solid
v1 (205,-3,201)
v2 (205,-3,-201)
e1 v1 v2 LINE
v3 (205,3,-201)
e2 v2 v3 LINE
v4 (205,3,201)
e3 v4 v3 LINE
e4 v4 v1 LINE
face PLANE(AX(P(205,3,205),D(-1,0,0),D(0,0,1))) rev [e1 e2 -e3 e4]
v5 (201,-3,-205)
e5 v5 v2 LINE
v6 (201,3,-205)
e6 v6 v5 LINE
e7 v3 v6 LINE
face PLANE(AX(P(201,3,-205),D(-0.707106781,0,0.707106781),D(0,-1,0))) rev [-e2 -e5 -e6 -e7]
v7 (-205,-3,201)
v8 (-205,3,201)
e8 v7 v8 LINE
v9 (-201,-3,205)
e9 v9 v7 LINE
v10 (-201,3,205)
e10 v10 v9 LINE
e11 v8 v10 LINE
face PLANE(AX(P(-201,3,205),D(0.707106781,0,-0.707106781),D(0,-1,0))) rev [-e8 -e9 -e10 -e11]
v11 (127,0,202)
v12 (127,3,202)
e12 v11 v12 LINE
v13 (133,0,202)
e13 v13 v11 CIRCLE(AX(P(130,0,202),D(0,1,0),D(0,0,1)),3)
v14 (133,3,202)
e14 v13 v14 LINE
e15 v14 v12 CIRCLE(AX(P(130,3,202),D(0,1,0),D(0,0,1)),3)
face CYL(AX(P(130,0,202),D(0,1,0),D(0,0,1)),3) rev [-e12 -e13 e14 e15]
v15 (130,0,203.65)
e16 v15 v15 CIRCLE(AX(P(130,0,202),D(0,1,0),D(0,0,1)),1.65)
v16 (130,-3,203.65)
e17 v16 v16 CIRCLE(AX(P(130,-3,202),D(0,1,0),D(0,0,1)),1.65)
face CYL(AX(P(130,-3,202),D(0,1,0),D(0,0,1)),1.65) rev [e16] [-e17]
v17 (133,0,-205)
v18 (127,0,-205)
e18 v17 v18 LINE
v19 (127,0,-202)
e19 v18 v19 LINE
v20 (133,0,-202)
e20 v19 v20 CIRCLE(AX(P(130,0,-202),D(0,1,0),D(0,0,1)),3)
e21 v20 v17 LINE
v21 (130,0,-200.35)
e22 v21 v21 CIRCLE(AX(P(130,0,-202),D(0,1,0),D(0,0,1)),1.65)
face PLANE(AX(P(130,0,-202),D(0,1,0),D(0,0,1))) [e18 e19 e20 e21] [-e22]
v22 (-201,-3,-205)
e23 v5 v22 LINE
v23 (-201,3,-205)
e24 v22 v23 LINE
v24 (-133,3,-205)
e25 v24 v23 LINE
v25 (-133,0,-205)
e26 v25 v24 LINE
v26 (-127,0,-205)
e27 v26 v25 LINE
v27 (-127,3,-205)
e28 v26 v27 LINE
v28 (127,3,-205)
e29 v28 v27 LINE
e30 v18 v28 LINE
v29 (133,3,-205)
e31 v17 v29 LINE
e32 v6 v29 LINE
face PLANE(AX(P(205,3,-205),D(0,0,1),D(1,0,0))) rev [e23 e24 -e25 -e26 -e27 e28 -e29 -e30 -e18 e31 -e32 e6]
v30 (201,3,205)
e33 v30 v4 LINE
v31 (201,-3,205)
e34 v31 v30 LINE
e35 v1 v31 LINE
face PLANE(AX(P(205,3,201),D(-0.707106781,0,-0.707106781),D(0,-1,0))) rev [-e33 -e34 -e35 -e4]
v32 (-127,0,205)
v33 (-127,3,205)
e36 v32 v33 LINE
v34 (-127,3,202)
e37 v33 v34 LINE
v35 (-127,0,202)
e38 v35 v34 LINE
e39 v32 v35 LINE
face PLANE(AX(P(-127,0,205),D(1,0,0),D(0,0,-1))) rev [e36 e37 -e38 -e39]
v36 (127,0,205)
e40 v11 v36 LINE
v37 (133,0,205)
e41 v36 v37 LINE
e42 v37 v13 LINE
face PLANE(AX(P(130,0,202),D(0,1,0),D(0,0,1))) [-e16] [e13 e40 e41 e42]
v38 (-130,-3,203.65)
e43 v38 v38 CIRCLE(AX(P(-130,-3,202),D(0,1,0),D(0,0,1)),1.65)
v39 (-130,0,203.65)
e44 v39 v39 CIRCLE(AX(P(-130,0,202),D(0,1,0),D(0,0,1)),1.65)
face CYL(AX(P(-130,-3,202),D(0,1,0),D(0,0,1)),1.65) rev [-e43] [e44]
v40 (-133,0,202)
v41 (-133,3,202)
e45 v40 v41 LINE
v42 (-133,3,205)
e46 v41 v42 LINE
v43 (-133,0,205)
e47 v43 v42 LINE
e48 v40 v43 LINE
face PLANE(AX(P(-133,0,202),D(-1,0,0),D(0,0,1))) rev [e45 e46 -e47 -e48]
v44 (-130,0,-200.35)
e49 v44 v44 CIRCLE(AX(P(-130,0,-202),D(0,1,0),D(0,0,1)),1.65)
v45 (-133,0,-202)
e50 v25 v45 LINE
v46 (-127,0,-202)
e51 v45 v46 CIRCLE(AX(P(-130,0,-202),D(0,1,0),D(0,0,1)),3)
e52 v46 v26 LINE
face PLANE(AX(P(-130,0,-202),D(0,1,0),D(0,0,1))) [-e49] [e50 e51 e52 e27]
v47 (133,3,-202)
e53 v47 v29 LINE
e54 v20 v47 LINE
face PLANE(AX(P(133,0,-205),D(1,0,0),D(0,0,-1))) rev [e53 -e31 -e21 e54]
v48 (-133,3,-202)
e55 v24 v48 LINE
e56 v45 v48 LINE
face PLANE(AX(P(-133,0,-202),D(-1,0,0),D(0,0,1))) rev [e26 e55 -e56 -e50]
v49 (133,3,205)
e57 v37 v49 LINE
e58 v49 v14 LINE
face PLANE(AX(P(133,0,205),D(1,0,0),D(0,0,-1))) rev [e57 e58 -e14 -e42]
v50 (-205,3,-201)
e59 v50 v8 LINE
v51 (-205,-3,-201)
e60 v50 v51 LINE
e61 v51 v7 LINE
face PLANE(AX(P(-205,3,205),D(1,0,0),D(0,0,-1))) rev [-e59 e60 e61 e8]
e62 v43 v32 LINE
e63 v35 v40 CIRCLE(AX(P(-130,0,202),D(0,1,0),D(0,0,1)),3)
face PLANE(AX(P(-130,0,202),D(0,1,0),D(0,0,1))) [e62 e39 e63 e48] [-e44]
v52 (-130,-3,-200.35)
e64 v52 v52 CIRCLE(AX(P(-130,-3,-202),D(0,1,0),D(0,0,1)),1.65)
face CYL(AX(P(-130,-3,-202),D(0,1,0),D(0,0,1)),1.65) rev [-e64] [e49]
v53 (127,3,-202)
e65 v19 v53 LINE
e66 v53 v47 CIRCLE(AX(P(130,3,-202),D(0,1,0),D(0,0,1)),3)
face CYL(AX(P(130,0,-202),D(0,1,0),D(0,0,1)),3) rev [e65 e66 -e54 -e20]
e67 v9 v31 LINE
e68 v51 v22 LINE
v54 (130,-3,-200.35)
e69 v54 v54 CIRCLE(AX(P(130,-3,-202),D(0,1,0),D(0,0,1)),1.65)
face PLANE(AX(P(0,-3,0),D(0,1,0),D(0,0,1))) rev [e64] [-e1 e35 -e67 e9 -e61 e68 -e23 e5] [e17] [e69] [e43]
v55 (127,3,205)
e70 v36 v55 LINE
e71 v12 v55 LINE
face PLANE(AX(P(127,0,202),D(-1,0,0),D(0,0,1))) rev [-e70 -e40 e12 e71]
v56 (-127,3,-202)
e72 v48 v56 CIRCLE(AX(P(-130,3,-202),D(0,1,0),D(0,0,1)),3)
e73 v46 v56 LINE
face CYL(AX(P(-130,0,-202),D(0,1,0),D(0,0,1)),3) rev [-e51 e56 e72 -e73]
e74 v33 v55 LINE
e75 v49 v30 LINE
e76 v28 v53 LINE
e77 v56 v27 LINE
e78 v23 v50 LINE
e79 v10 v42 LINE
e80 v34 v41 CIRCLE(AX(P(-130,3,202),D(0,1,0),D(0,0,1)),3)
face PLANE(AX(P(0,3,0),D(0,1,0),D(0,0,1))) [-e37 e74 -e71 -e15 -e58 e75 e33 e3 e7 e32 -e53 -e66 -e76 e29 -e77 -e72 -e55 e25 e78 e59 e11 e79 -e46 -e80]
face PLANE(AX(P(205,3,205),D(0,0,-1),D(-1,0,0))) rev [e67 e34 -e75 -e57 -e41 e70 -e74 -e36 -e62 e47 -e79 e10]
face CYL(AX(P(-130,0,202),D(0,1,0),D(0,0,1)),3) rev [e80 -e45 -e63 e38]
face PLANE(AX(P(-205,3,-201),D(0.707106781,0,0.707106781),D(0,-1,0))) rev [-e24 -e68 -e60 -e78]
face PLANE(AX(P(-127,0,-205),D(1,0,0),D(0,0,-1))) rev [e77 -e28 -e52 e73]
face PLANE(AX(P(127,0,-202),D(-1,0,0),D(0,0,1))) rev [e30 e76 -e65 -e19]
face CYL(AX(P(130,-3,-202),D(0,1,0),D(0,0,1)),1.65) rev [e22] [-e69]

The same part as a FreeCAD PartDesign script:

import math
import FreeCAD as App
import Part
import Sketcher


def edges_at(feature, points):
    """Names of the edges that pass closest to the given points."""
    edges = feature.Shape.Edges
    near = lambda p: min(range(len(edges)), key=lambda i: edges[i].distToShape(Part.Vertex(*p))[0])
    return sorted({f"Edge{near(p) + 1}" for p in points})

doc = App.newDocument("Part")
params = doc.addObject("Spreadsheet::Sheet", "Params")
for row, (alias, value) in enumerate([
    ("sketch1_width", "410 mm"),
    ("pad1_length", "6 mm"),
    ("chamfer_size", "4 mm"),
    ("sketch2_radius", "3 mm"),
    ("sketch2_height", "3 mm"),
    ("pocket1_length", "3 mm"),
    ("sketch3_diameter", "3.3 mm"),
], start=1):
    params.set(f"A{row}", alias)
    params.set(f"B{row}", "=" + value)
    params.setAlias(f"B{row}", alias)

body = doc.addObject("PartDesign::Body", "Body")

# Sketch on XZ plane
sketch1 = body.newObject("Sketcher::SketchObject", "Sketch")
sketch1.AttachmentSupport = (doc.getObject("XZ_Plane"), [""])
sketch1.MapMode = "FlatFace"
sketch1.addGeometry(Part.LineSegment(App.Vector(-205, -205, 0), App.Vector(-205, 205, 0)), False)
sketch1.addGeometry(Part.LineSegment(App.Vector(-205, 205, 0), App.Vector(205, 205, 0)), False)
sketch1.addGeometry(Part.LineSegment(App.Vector(205, 205, 0), App.Vector(205, -205, 0)), False)
sketch1.addGeometry(Part.LineSegment(App.Vector(205, -205, 0), App.Vector(-205, -205, 0)), False)
sketch1.addConstraint(Sketcher.Constraint("Coincident", 0, 2, 1, 1))
sketch1.addConstraint(Sketcher.Constraint("Coincident", 1, 2, 2, 1))
sketch1.addConstraint(Sketcher.Constraint("Coincident", 2, 2, 3, 1))
sketch1.addConstraint(Sketcher.Constraint("Coincident", 3, 2, 0, 1))
sketch1.addConstraint(Sketcher.Constraint("Vertical", 0))
sketch1.addConstraint(Sketcher.Constraint("Horizontal", 1))
sketch1.addConstraint(Sketcher.Constraint("Vertical", 2))
sketch1.addConstraint(Sketcher.Constraint("Horizontal", 3))
sketch1.addConstraint(Sketcher.Constraint("Symmetric", 0, 2, 2, 2, -1, 1))
sketch1.addConstraint(Sketcher.Constraint("Equal", 3, 0))
sketch1.addConstraint(Sketcher.Constraint("DistanceX", 1, 1, 1, 2, 410.0))
sketch1.setExpression("Constraints[10]", "Params.sketch1_width")
pad1 = body.newObject("PartDesign::Pad", "Pad")
pad1.Profile = sketch1
pad1.setExpression("Length", "Params.pad1_length")
pad1.Midplane = True
doc.recompute()

chamfer = body.newObject("PartDesign::Chamfer", "Chamfer")
chamfer.Base = (pad1, edges_at(pad1, [
    (-205, 0, -205),
    (205, 0, -205),
    (205, 0, 205),
    (-205, 0, 205),
]))
chamfer.setExpression("Size", "Params.chamfer_size")

# Sketch on XZ plane
sketch2 = body.newObject("Sketcher::SketchObject", "Sketch001")
sketch2.AttachmentSupport = (doc.getObject("XZ_Plane"), [""])
sketch2.MapMode = "FlatFace"
sketch2.AttachmentOffset = App.Placement(App.Vector(0, 0, -3), App.Rotation())
sketch2.addGeometry(Part.LineSegment(App.Vector(-133, -205, 0), App.Vector(-133, -202, 0)), False)
sketch2.addGeometry(Part.ArcOfCircle(Part.Circle(App.Vector(-130, -202, 0), App.Vector(0, 0, 1), 3), math.radians(0), math.radians(180)), False)
sketch2.addGeometry(Part.LineSegment(App.Vector(-127, -202, 0), App.Vector(-127, -205, 0)), False)
sketch2.addGeometry(Part.LineSegment(App.Vector(-127, -205, 0), App.Vector(-133, -205, 0)), False)
sketch2.addGeometry(Part.LineSegment(App.Vector(127, -205, 0), App.Vector(127, -202, 0)), False)
sketch2.addGeometry(Part.ArcOfCircle(Part.Circle(App.Vector(130, -202, 0), App.Vector(0, 0, 1), 3), math.radians(0), math.radians(180)), False)
sketch2.addGeometry(Part.LineSegment(App.Vector(133, -202, 0), App.Vector(133, -205, 0)), False)
sketch2.addGeometry(Part.LineSegment(App.Vector(133, -205, 0), App.Vector(127, -205, 0)), False)
sketch2.addGeometry(Part.LineSegment(App.Vector(-133, 202, 0), App.Vector(-133, 205, 0)), False)
sketch2.addGeometry(Part.LineSegment(App.Vector(-133, 205, 0), App.Vector(-127, 205, 0)), False)
sketch2.addGeometry(Part.LineSegment(App.Vector(-127, 205, 0), App.Vector(-127, 202, 0)), False)
sketch2.addGeometry(Part.ArcOfCircle(Part.Circle(App.Vector(-130, 202, 0), App.Vector(0, 0, 1), 3), math.radians(180), math.radians(360)), False)
sketch2.addGeometry(Part.LineSegment(App.Vector(127, 202, 0), App.Vector(127, 205, 0)), False)
sketch2.addGeometry(Part.LineSegment(App.Vector(127, 205, 0), App.Vector(133, 205, 0)), False)
sketch2.addGeometry(Part.LineSegment(App.Vector(133, 205, 0), App.Vector(133, 202, 0)), False)
sketch2.addGeometry(Part.ArcOfCircle(Part.Circle(App.Vector(130, 202, 0), App.Vector(0, 0, 1), 3), math.radians(180), math.radians(360)), False)
sketch2.addConstraint(Sketcher.Constraint("Tangent", 0, 2, 1, 2))
sketch2.addConstraint(Sketcher.Constraint("Tangent", 1, 1, 2, 1))
sketch2.addConstraint(Sketcher.Constraint("Coincident", 2, 2, 3, 1))
sketch2.addConstraint(Sketcher.Constraint("Coincident", 3, 2, 0, 1))
sketch2.addConstraint(Sketcher.Constraint("Tangent", 4, 2, 5, 2))
sketch2.addConstraint(Sketcher.Constraint("Tangent", 5, 1, 6, 1))
sketch2.addConstraint(Sketcher.Constraint("Coincident", 6, 2, 7, 1))
sketch2.addConstraint(Sketcher.Constraint("Coincident", 7, 2, 4, 1))
sketch2.addConstraint(Sketcher.Constraint("Coincident", 8, 2, 9, 1))
sketch2.addConstraint(Sketcher.Constraint("Coincident", 9, 2, 10, 1))
sketch2.addConstraint(Sketcher.Constraint("Tangent", 10, 2, 11, 2))
sketch2.addConstraint(Sketcher.Constraint("Tangent", 11, 1, 8, 1))
sketch2.addConstraint(Sketcher.Constraint("Coincident", 12, 2, 13, 1))
sketch2.addConstraint(Sketcher.Constraint("Coincident", 13, 2, 14, 1))
sketch2.addConstraint(Sketcher.Constraint("Tangent", 14, 2, 15, 2))
sketch2.addConstraint(Sketcher.Constraint("Tangent", 15, 1, 12, 1))
sketch2.addConstraint(Sketcher.Constraint("Vertical", 0))
sketch2.addConstraint(Sketcher.Constraint("Vertical", 2))
sketch2.addConstraint(Sketcher.Constraint("Horizontal", 3))
sketch2.addConstraint(Sketcher.Constraint("Vertical", 4))
sketch2.addConstraint(Sketcher.Constraint("Vertical", 6))
sketch2.addConstraint(Sketcher.Constraint("Horizontal", 7))
sketch2.addConstraint(Sketcher.Constraint("Vertical", 8))
sketch2.addConstraint(Sketcher.Constraint("Horizontal", 9))
sketch2.addConstraint(Sketcher.Constraint("Vertical", 10))
sketch2.addConstraint(Sketcher.Constraint("Vertical", 12))
sketch2.addConstraint(Sketcher.Constraint("Horizontal", 13))
sketch2.addConstraint(Sketcher.Constraint("Vertical", 14))
sketch2.addConstraint(Sketcher.Constraint("Equal", 1, 5))
sketch2.addConstraint(Sketcher.Constraint("Equal", 5, 11))
sketch2.addConstraint(Sketcher.Constraint("Equal", 11, 15))
sketch2.addConstraint(Sketcher.Constraint("Symmetric", 5, 3, 11, 3, -1, 1))
sketch2.addConstraint(Sketcher.Constraint("Symmetric", 1, 3, 15, 3, -1, 1))
sketch2.addConstraint(Sketcher.Constraint("Symmetric", 1, 3, 5, 3, -2))
sketch2.addConstraint(Sketcher.Constraint("Horizontal", 3, 2, 6, 2))
sketch2.addConstraint(Sketcher.Constraint("Horizontal", 9, 2, 12, 2))
sketch2.addConstraint(Sketcher.Constraint("Equal", 6, 8))
sketch2.addConstraint(Sketcher.Constraint("Radius", 1, 3.0))
sketch2.addConstraint(Sketcher.Constraint("DistanceY", 0, 1, 0, 2, 3.0))
sketch2.addConstraint(Sketcher.Constraint("DistanceX", 1, 3, -1, 1, 130.0))
sketch2.addConstraint(Sketcher.Constraint("DistanceY", 1, 3, -1, 1, 202.0))
sketch2.setExpression("Constraints[37]", "Params.sketch2_radius")
sketch2.setExpression("Constraints[38]", "Params.sketch2_height")
pocket1 = body.newObject("PartDesign::Pocket", "Pocket")
pocket1.Profile = sketch2
pocket1.setExpression("Length", "Params.pocket1_length")
pocket1.Reversed = True

# Sketch on XZ plane
sketch3 = body.newObject("Sketcher::SketchObject", "Sketch002")
sketch3.AttachmentSupport = (doc.getObject("XZ_Plane"), [""])
sketch3.MapMode = "FlatFace"
sketch3.addGeometry(Part.Circle(App.Vector(-130, 202, 0), App.Vector(0, 0, 1), 1.6), False)
sketch3.addGeometry(Part.Circle(App.Vector(130, 202, 0), App.Vector(0, 0, 1), 1.6), False)
sketch3.addGeometry(Part.Circle(App.Vector(130, -202, 0), App.Vector(0, 0, 1), 1.6), False)
sketch3.addGeometry(Part.Circle(App.Vector(-130, -202, 0), App.Vector(0, 0, 1), 1.6), False)
sketch3.addConstraint(Sketcher.Constraint("Equal", 0, 1))
sketch3.addConstraint(Sketcher.Constraint("Equal", 1, 2))
sketch3.addConstraint(Sketcher.Constraint("Equal", 2, 3))
sketch3.addConstraint(Sketcher.Constraint("Symmetric", 0, 3, 2, 3, -1, 1))
sketch3.addConstraint(Sketcher.Constraint("Symmetric", 1, 3, 3, 3, -1, 1))
sketch3.addConstraint(Sketcher.Constraint("Symmetric", 0, 3, 1, 3, -2))
sketch3.addConstraint(Sketcher.Constraint("Diameter", 0, 3.3))
sketch3.addConstraint(Sketcher.Constraint("DistanceX", 0, 3, -1, 1, 130.0))
sketch3.addConstraint(Sketcher.Constraint("DistanceY", -1, 1, 0, 3, 202.0))
sketch3.setExpression("Constraints[6]", "Params.sketch3_diameter")
pocket2 = body.newObject("PartDesign::Pocket", "Pocket001")
pocket2.Profile = sketch3
pocket2.Type = "ThroughAll"
pocket2.Reversed = True

doc.recompute()
